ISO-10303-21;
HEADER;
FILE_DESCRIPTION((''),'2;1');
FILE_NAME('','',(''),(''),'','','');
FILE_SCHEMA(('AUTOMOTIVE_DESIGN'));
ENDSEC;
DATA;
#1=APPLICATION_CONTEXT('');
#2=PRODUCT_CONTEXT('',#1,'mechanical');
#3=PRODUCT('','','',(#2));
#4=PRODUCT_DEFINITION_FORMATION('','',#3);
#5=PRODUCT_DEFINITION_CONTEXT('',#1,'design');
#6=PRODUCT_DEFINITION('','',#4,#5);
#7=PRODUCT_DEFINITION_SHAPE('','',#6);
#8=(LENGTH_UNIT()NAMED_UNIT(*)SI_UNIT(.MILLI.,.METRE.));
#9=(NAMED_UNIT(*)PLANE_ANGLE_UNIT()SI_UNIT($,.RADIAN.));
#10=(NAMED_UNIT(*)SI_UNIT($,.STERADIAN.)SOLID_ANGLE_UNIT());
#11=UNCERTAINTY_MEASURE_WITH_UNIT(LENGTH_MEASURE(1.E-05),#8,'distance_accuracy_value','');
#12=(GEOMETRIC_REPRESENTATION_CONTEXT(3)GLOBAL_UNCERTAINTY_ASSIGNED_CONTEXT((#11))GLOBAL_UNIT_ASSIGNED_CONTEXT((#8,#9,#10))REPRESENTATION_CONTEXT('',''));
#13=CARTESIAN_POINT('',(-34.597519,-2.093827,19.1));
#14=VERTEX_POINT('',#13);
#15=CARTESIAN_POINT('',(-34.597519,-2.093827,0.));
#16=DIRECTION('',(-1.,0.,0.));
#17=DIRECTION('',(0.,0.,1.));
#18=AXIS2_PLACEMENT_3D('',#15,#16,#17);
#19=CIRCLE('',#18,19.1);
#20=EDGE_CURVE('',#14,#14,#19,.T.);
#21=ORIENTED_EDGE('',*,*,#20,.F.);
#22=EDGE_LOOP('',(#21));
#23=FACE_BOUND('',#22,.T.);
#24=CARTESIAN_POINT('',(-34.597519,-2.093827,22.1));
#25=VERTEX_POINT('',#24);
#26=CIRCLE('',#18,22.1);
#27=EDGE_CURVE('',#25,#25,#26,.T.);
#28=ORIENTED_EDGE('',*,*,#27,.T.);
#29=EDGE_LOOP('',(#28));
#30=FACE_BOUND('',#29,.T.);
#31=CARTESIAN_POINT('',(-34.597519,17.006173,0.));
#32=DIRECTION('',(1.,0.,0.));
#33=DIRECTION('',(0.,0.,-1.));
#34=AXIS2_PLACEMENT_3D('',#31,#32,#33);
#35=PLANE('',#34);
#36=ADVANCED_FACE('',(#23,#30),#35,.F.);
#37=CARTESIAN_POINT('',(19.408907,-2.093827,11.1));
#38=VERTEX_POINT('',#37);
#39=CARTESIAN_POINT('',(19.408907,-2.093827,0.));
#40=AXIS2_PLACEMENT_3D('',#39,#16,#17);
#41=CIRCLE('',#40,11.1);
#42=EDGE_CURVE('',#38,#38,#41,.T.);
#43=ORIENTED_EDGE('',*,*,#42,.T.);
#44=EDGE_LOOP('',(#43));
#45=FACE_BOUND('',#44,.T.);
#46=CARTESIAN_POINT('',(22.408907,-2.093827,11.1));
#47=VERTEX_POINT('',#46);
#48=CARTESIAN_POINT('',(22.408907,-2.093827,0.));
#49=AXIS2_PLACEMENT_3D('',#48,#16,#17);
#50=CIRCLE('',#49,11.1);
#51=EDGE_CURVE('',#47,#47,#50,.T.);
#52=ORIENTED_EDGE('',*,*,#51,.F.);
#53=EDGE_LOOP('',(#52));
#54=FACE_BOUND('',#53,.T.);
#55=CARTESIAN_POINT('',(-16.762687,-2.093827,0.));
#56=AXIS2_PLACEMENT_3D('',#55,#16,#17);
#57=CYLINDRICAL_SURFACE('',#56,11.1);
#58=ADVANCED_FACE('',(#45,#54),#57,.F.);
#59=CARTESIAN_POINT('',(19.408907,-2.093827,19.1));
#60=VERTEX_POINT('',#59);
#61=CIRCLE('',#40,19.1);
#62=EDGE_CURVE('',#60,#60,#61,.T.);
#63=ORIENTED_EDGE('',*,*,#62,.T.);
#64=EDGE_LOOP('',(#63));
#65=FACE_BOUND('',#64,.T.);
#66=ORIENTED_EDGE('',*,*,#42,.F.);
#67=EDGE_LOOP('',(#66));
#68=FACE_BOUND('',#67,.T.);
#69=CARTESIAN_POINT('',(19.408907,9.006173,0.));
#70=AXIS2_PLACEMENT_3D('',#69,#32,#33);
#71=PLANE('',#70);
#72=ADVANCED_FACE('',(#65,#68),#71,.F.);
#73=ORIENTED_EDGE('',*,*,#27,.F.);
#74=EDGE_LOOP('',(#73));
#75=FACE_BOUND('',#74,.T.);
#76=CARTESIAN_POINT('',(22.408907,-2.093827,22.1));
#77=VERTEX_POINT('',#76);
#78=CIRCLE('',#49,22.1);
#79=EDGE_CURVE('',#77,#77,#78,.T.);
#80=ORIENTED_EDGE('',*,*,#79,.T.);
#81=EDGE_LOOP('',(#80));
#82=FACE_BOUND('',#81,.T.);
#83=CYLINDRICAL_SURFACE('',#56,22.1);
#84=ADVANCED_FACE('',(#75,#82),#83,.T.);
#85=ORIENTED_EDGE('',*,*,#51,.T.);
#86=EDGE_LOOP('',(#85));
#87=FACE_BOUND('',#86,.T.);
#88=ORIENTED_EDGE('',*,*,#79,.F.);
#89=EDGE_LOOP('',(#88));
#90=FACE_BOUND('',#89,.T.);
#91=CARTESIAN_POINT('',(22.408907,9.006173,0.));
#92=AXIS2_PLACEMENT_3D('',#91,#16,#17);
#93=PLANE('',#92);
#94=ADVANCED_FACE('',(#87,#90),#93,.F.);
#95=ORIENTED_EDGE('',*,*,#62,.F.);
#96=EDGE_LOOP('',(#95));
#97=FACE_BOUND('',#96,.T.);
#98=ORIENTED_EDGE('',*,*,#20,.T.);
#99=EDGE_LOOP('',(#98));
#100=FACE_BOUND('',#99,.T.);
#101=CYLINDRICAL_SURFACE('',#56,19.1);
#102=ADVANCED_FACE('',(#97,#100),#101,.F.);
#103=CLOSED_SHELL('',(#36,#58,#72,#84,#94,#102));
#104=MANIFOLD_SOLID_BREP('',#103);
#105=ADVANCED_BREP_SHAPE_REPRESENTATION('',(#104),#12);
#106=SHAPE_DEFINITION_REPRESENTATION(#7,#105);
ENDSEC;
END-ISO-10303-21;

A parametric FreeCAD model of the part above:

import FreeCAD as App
import Part
import Sketcher
from FreeCAD import Vector

doc = App.newDocument("Part")
body = doc.addObject("PartDesign::Body", "Body")

sketch1 = body.newObject("Sketcher::SketchObject", "Sketch")
sketch1.AttachmentSupport = (doc.getObject("XY_Plane"), [""])
sketch1.MapMode = "FlatFace"
sketch1.addGeometry(Part.LineSegment(Vector(19.4, 9, 0), Vector(22.4, 9, 0)), False)
sketch1.addGeometry(Part.LineSegment(Vector(22.4, 9, 0), Vector(22.4, 20, 0)), False)
sketch1.addGeometry(Part.LineSegment(Vector(22.4, 20, 0), Vector(-34.6, 20, 0)), False)
sketch1.addGeometry(Part.LineSegment(Vector(-34.6, 20, 0), Vector(-34.6, 17, 0)), False)
sketch1.addGeometry(Part.LineSegment(Vector(-34.6, 17, 0), Vector(19.4, 17, 0)), False)
sketch1.addGeometry(Part.LineSegment(Vector(19.4, 17, 0), Vector(19.4, 9, 0)), False)
sketch1.addGeometry(Part.LineSegment(Vector(-34.6, -2.1, 0), Vector(22.4, -2.1, 0)), True)
sketch1.addConstraint(Sketcher.Constraint("Coincident", 0, 2, 1, 1))
sketch1.addConstraint(Sketcher.Constraint("Coincident", 1, 2, 2, 1))
sketch1.addConstraint(Sketcher.Constraint("Coincident", 2, 2, 3, 1))
sketch1.addConstraint(Sketcher.Constraint("Coincident", 3, 2, 4, 1))
sketch1.addConstraint(Sketcher.Constraint("Coincident", 4, 2, 5, 1))
sketch1.addConstraint(Sketcher.Constraint("Coincident", 5, 2, 0, 1))
sketch1.addConstraint(Sketcher.Constraint("Horizontal", 0))
sketch1.addConstraint(Sketcher.Constraint("Vertical", 1))
sketch1.addConstraint(Sketcher.Constraint("Horizontal", 2))
sketch1.addConstraint(Sketcher.Constraint("Vertical", 3))
sketch1.addConstraint(Sketcher.Constraint("Horizontal", 4))
sketch1.addConstraint(Sketcher.Constraint("Vertical", 5))
sketch1.addConstraint(Sketcher.Constraint("Horizontal", 6))
sketch1.addConstraint(Sketcher.Constraint("Vertical", 3, 2, 6, 1))
sketch1.addConstraint(Sketcher.Constraint("Vertical", 1, 2, 6, 2))
sketch1.addConstraint(Sketcher.Constraint("Equal", 0, 3))
sketch1.addConstraint(Sketcher.Constraint("DistanceX", 0, 1, 0, 2, 3.0))
sketch1.addConstraint(Sketcher.Constraint("DistanceY", 1, 1, 1, 2, 11.0))
sketch1.addConstraint(Sketcher.Constraint("DistanceY", 6, 1, 3, 2, 19.1))
sketch1.addConstraint(Sketcher.Constraint("DistanceX", 2, 2, 2, 1, 57.006426))
sketch1.addConstraint(Sketcher.Constraint("DistanceX", 2, 2, -1, 1, 34.597519))
sketch1.addConstraint(Sketcher.Constraint("DistanceY", -1, 1, 0, 2, 9.006173))
revolution = body.newObject("PartDesign::Revolution", "Revolution")
revolution.Profile = sketch1
revolution.ReferenceAxis = (sketch1, ["Axis0"])
revolution.Angle = 360

doc.recompute()
